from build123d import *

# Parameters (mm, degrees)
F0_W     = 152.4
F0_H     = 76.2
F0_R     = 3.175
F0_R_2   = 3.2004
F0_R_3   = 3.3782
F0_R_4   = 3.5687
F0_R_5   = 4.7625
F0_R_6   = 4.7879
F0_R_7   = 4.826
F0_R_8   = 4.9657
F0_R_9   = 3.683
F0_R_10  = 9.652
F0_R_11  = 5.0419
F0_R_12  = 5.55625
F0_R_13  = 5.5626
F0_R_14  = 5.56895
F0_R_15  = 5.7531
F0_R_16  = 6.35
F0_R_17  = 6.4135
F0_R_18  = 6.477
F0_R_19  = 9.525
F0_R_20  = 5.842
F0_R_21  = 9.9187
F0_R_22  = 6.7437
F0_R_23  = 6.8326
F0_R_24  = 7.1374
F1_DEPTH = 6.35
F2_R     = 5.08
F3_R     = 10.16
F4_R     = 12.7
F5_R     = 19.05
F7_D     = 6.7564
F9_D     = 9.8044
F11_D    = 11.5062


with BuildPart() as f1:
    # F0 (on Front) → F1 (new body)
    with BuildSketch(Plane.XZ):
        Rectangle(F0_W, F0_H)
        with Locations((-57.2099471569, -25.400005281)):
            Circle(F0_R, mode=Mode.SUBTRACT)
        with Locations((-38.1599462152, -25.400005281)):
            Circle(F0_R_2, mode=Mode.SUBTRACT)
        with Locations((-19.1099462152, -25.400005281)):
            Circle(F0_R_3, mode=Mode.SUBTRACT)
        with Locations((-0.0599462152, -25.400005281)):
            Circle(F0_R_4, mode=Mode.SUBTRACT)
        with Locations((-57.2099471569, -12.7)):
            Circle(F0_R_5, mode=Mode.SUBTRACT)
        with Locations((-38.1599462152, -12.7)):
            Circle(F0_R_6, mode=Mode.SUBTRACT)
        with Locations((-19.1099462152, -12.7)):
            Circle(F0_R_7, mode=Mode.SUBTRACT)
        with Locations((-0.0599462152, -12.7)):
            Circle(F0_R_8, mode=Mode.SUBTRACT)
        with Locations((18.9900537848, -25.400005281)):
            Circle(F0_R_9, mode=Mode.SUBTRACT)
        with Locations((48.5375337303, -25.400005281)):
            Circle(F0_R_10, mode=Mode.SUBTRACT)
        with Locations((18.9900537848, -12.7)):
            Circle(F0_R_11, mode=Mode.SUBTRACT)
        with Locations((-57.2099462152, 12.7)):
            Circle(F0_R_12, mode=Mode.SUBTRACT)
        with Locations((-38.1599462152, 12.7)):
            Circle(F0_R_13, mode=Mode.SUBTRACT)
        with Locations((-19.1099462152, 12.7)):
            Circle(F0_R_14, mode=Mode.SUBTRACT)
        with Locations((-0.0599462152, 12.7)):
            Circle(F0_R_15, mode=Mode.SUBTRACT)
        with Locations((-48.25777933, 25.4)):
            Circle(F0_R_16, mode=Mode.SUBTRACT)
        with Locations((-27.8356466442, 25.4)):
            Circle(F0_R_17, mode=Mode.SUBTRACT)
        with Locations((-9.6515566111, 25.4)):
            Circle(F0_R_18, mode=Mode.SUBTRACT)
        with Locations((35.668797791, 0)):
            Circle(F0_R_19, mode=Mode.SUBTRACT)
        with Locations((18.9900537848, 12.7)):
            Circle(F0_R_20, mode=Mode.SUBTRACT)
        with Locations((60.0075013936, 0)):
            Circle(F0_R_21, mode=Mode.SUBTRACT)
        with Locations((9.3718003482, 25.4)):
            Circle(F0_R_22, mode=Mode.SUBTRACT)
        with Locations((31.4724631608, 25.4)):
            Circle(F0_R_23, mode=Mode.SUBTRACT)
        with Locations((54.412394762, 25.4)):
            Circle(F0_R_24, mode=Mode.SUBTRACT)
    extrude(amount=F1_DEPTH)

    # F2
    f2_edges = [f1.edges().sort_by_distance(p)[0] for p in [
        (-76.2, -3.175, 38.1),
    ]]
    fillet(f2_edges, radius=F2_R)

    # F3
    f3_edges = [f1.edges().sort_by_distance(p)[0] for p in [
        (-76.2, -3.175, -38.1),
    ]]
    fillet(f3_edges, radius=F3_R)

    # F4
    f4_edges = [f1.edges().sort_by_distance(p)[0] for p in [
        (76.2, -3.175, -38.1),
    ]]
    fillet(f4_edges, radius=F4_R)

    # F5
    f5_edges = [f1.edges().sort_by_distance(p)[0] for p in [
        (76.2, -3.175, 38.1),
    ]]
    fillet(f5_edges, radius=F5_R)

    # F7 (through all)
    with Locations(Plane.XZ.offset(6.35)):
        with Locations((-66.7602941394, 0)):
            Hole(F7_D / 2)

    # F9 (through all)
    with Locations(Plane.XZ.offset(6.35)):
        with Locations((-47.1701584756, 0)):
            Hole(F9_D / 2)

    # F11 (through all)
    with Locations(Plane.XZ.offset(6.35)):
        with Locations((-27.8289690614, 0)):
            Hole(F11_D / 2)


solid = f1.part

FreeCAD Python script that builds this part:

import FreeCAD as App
import Part
import Sketcher
Q = App.Units.Quantity


def edges_at(feature, points):
    """Names of the edges that pass closest to the given points."""
    edges = feature.Shape.Edges
    near = lambda p: min(range(len(edges)), key=lambda i: edges[i].distToShape(Part.Vertex(*p))[0])
    return sorted({f"Edge{near(p) + 1}" for p in points})


def add_polygon(sketch, points):
    """Adds a closed chain of lines whose ends are joined by coincident constraints."""
    first, n = sketch.GeometryCount, len(points)
    for a, b in zip(points, points[1:] + points[:1]):
        sketch.addGeometry(Part.LineSegment(App.Vector(*a, 0), App.Vector(*b, 0)), False)
    for i in range(n):
        sketch.addConstraint(Sketcher.Constraint("Coincident", first + i, 2, first + (i + 1) % n, 1))

doc = App.newDocument("Part")
body = doc.addObject("PartDesign::Body", "Body")

sketch1 = body.newObject("Sketcher::SketchObject", "Sketch")
sketch1.AttachmentSupport = (doc.getObject("XZ_Plane"), [""])
sketch1.MapMode = "FlatFace"
add_polygon(sketch1, [(-76.2, 38.1), (-76.2, -38.1), (76.2, -38.1), (76.2, 38.1)])
sketch1.addGeometry(Part.Circle(App.Vector(-57.2, -25.4, 0), App.Vector(0, 0, 1), 3.2), False)
sketch1.addGeometry(Part.Circle(App.Vector(-38.2, -25.4, 0), App.Vector(0, 0, 1), 3.2), False)
sketch1.addGeometry(Part.Circle(App.Vector(-19.1, -25.4, 0), App.Vector(0, 0, 1), 3.4), False)
sketch1.addGeometry(Part.Circle(App.Vector(-0.1, -25.4, 0), App.Vector(0, 0, 1), 3.6), False)
sketch1.addGeometry(Part.Circle(App.Vector(-57.2, -12.7, 0), App.Vector(0, 0, 1), 4.8), False)
sketch1.addGeometry(Part.Circle(App.Vector(-38.2, -12.7, 0), App.Vector(0, 0, 1), 4.8), False)
sketch1.addGeometry(Part.Circle(App.Vector(-19.1, -12.7, 0), App.Vector(0, 0, 1), 4.8), False)
sketch1.addGeometry(Part.Circle(App.Vector(-0.1, -12.7, 0), App.Vector(0, 0, 1), 5), False)
sketch1.addGeometry(Part.Circle(App.Vector(19, -25.4, 0), App.Vector(0, 0, 1), 3.7), False)
sketch1.addGeometry(Part.Circle(App.Vector(48.5, -25.4, 0), App.Vector(0, 0, 1), 9.7), False)
sketch1.addGeometry(Part.Circle(App.Vector(19, -12.7, 0), App.Vector(0, 0, 1), 5), False)
sketch1.addGeometry(Part.Circle(App.Vector(-57.2, 12.7, 0), App.Vector(0, 0, 1), 5.6), False)
sketch1.addGeometry(Part.Circle(App.Vector(-38.2, 12.7, 0), App.Vector(0, 0, 1), 5.6), False)
sketch1.addGeometry(Part.Circle(App.Vector(-19.1, 12.7, 0), App.Vector(0, 0, 1), 5.6), False)
sketch1.addGeometry(Part.Circle(App.Vector(-0.1, 12.7, 0), App.Vector(0, 0, 1), 5.8), False)
sketch1.addGeometry(Part.Circle(App.Vector(-48.3, 25.4, 0), App.Vector(0, 0, 1), 6.3), False)
sketch1.addGeometry(Part.Circle(App.Vector(-27.8, 25.4, 0), App.Vector(0, 0, 1), 6.4), False)
sketch1.addGeometry(Part.Circle(App.Vector(-9.7, 25.4, 0), App.Vector(0, 0, 1), 6.5), False)
sketch1.addGeometry(Part.Circle(App.Vector(35.7, 0, 0), App.Vector(0, 0, 1), 9.5), False)
sketch1.addGeometry(Part.Circle(App.Vector(19, 12.7, 0), App.Vector(0, 0, 1), 5.8), False)
sketch1.addGeometry(Part.Circle(App.Vector(60, 0, 0), App.Vector(0, 0, 1), 9.9), False)
sketch1.addGeometry(Part.Circle(App.Vector(9.4, 25.4, 0), App.Vector(0, 0, 1), 6.7), False)
sketch1.addGeometry(Part.Circle(App.Vector(31.5, 25.4, 0), App.Vector(0, 0, 1), 6.8), False)
sketch1.addGeometry(Part.Circle(App.Vector(54.4, 25.4, 0), App.Vector(0, 0, 1), 7.1), False)
sketch1.addConstraint([
    Sketcher.Constraint("Vertical", 0),
    Sketcher.Constraint("Horizontal", 1),
    Sketcher.Constraint("Vertical", 2),
    Sketcher.Constraint("Horizontal", 3),
    Sketcher.Constraint("Symmetric", 0, 2, 2, 2, -1, 1),
    Sketcher.Constraint("Symmetric", 8, 3, 15, 3, -1),
    Sketcher.Constraint("Symmetric", 9, 3, 16, 3, -1),
    Sketcher.Constraint("Symmetric", 10, 3, 17, 3, -1),
    Sketcher.Constraint("Symmetric", 11, 3, 18, 3, -1),
    Sketcher.Constraint("Symmetric", 14, 3, 23, 3, -1),
    Sketcher.Constraint("PointOnObject", 22, 3, -1),
    Sketcher.Constraint("PointOnObject", 24, 3, -1),
    Sketcher.Constraint("Horizontal", 4, 3, 5, 3),
    Sketcher.Constraint("Horizontal", 5, 3, 6, 3),
    Sketcher.Constraint("Horizontal", 6, 3, 7, 3),
    Sketcher.Constraint("Horizontal", 8, 3, 9, 3),
    Sketcher.Constraint("Horizontal", 9, 3, 10, 3),
    Sketcher.Constraint("Horizontal", 10, 3, 11, 3),
    Sketcher.Constraint("Horizontal", 7, 3, 12, 3),
    Sketcher.Constraint("Horizontal", 12, 3, 13, 3),
    Sketcher.Constraint("Horizontal", 11, 3, 14, 3),
    Sketcher.Constraint("Horizontal", 19, 3, 20, 3),
    Sketcher.Constraint("Horizontal", 20, 3, 21, 3),
    Sketcher.Constraint("Horizontal", 21, 3, 25, 3),
    Sketcher.Constraint("Horizontal", 25, 3, 26, 3),
    Sketcher.Constraint("Horizontal", 26, 3, 27, 3),
    Sketcher.Constraint("Vertical", 4, 3, 8, 3),
    Sketcher.Constraint("Vertical", 5, 3, 9, 3),
    Sketcher.Constraint("Vertical", 6, 3, 10, 3),
    Sketcher.Constraint("Vertical", 7, 3, 11, 3),
    Sketcher.Constraint("Vertical", 12, 3, 14, 3),
    Sketcher.Constraint("Diameter", 19, Q("0.5 in")),
    Sketcher.Constraint("Diameter", 4, Q("0.25 in")),
    Sketcher.Constraint("Diameter", 10, Q("0.38 in")),
    Sketcher.Constraint("Diameter", 12, Q("0.29 in")),
    Sketcher.Constraint("Diameter", 13, Q("0.76 in")),
    Sketcher.Constraint("Diameter", 21, Q("0.51 in")),
    Sketcher.Constraint("Diameter", 22, Q("0.75 in")),
    Sketcher.Constraint("Diameter", 23, Q("0.46 in")),
    Sketcher.Constraint("DistanceX", 1, 1, 1, 2, Q("6 in")),
    Sketcher.Constraint("DistanceY", 0, 2, 0, 1, Q("3 in")),
    Sketcher.Constraint("Diameter", 5, Q("0.252 in")),
    Sketcher.Constraint("Diameter", 6, Q("0.266 in")),
    Sketcher.Constraint("Diameter", 7, Q("0.281 in")),
    Sketcher.Constraint("Diameter", 8, Q("0.375 in")),
    Sketcher.Constraint("Diameter", 9, Q("0.377 in")),
    Sketcher.Constraint("Diameter", 11, Q("0.391 in")),
    Sketcher.Constraint("Diameter", 14, Q("0.397 in")),
    Sketcher.Constraint("Diameter", 15, Q("0.4375 in")),
    Sketcher.Constraint("Diameter", 16, Q("0.438 in")),
    Sketcher.Constraint("Diameter", 18, Q("0.453 in")),
    Sketcher.Constraint("Diameter", 20, Q("0.505 in")),
    Sketcher.Constraint("Diameter", 24, Q("0.781 in")),
    Sketcher.Constraint("Diameter", 25, Q("0.531 in")),
    Sketcher.Constraint("Diameter", 26, Q("0.538 in")),
    Sketcher.Constraint("Diameter", 27, Q("0.562 in")),
    Sketcher.Constraint("DistanceY", -1, 1, 19, 3, Q("1 in")),
    Sketcher.Constraint("DistanceY", 8, 3, 15, 3, Q("1 in")),
    Sketcher.Constraint("Diameter", 17, Q("0.4385 in")),
    Sketcher.Constraint("DistanceX", 4, 3, 6, 3, Q("1.5 in")),
    Sketcher.Constraint("DistanceX", 5, 3, 7, 3, Q("1.5 in")),
    Sketcher.Constraint("DistanceX", 6, 3, 12, 3, Q("1.5 in")),
    Sketcher.Constraint("DistanceX", 4, 3, 5, 3, Q("0.75 in")),
    Sketcher.Constraint("DistanceX", -1, 1, 24, 3, Q("2.3625001 in")),
    Sketcher.Constraint("DistanceX", -1, 1, 25, 3, 9.3718),
    Sketcher.Constraint("DistanceX", 20, 3, 17, 3, 8.7257),
    Sketcher.Constraint("DistanceX", 19, 3, -1, 1, 48.257779),
    Sketcher.Constraint("DistanceX", 12, 3, 13, 3, 29.54748),
    Sketcher.Constraint("DistanceX", 17, 3, 21, 3, 9.45839),
    Sketcher.Constraint("DistanceX", 23, 3, 26, 3, 12.482409),
    Sketcher.Constraint("DistanceX", 26, 3, 24, 3, 28.535038),
    Sketcher.Constraint("DistanceX", 26, 3, 27, 3, 22.939932),
    Sketcher.Constraint("DistanceY", 4, 3, -1, 1, 25.400005),
    Sketcher.Constraint("DistanceX", -1, 1, 22, 3, 35.668798),
])
pad1 = body.newObject("PartDesign::Pad", "Pad")
pad1.Profile = sketch1
pad1.Length = Q("0.25 in")
doc.recompute()

fillet = body.newObject("PartDesign::Fillet", "Fillet")
fillet.Base = (pad1, edges_at(pad1, [(-76.2, -3.175, 38.1)]))
fillet.Radius = Q("0.2 in")
doc.recompute()

fillet2 = body.newObject("PartDesign::Fillet", "Fillet001")
fillet2.Base = (fillet, edges_at(fillet, [(-76.2, -3.175, -38.1)]))
fillet2.Radius = Q("0.4 in")
doc.recompute()

fillet3 = body.newObject("PartDesign::Fillet", "Fillet002")
fillet3.Base = (fillet2, edges_at(fillet2, [(76.2, -3.175, -38.1)]))
fillet3.Radius = Q("0.5 in")
doc.recompute()

fillet4 = body.newObject("PartDesign::Fillet", "Fillet003")
fillet4.Base = (fillet3, edges_at(fillet3, [(76.2, -3.175, 38.1)]))
fillet4.Radius = Q("0.75 in")

sketch2 = body.newObject("Sketcher::SketchObject", "Sketch001")
sketch2.AttachmentSupport = (doc.getObject("XZ_Plane"), [""])
sketch2.MapMode = "FlatFace"
sketch2.AttachmentOffset = App.Placement(App.Vector(0, 0, 0.25 * 25.4), App.Rotation())
sketch2.addGeometry(Part.Circle(App.Vector(-66.8, 0, 0), App.Vector(0, 0, 1), 3.4), False)
sketch2.addConstraint([
    Sketcher.Constraint("PointOnObject", 0, 3, -1),
    Sketcher.Constraint("Diameter", 0, Q("0.266 in")),
    Sketcher.Constraint("DistanceX", 0, 3, -1, 1, 66.760294),
])
doc.recompute()
hole = body.newObject("PartDesign::Hole", "Hole")
hole.Profile = sketch2
hole.ThreadType = "None"
hole.Diameter = Q("0.266 in")
hole.DepthType = "ThroughAll"

sketch3 = body.newObject("Sketcher::SketchObject", "Sketch002")
sketch3.AttachmentSupport = (doc.getObject("XZ_Plane"), [""])
sketch3.MapMode = "FlatFace"
sketch3.AttachmentOffset = App.Placement(App.Vector(0, 0, 0.25 * 25.4), App.Rotation())
sketch3.addGeometry(Part.Circle(App.Vector(-47.2, 0, 0), App.Vector(0, 0, 1), 4.9), False)
sketch3.addConstraint([
    Sketcher.Constraint("PointOnObject", 0, 3, -1),
    Sketcher.Constraint("Diameter", 0, Q("0.386 in")),
    Sketcher.Constraint("DistanceX", 0, 3, -1, 1, 47.170158),
])
doc.recompute()
hole2 = body.newObject("PartDesign::Hole", "Hole001")
hole2.Profile = sketch3
hole2.ThreadType = "None"
hole2.Diameter = Q("0.386 in")
hole2.DepthType = "ThroughAll"

sketch4 = body.newObject("Sketcher::SketchObject", "Sketch003")
sketch4.AttachmentSupport = (doc.getObject("XZ_Plane"), [""])
sketch4.MapMode = "FlatFace"
sketch4.AttachmentOffset = App.Placement(App.Vector(0, 0, 0.25 * 25.4), App.Rotation())
sketch4.addGeometry(Part.Circle(App.Vector(-28, 0, 0), App.Vector(0, 0, 1), 6), False)
sketch4.addConstraint([
    Sketcher.Constraint("PointOnObject", 0, 3, -1),
    Sketcher.Constraint("Diameter", 0, Q("0.453 in")),
    Sketcher.Constraint("DistanceX", 0, 3, -1, 1, 27.828969),
])
doc.recompute()
hole3 = body.newObject("PartDesign::Hole", "Hole002")
hole3.Profile = sketch4
hole3.ThreadType = "None"
hole3.Diameter = Q("0.453 in")
hole3.DepthType = "ThroughAll"

doc.recompute()
